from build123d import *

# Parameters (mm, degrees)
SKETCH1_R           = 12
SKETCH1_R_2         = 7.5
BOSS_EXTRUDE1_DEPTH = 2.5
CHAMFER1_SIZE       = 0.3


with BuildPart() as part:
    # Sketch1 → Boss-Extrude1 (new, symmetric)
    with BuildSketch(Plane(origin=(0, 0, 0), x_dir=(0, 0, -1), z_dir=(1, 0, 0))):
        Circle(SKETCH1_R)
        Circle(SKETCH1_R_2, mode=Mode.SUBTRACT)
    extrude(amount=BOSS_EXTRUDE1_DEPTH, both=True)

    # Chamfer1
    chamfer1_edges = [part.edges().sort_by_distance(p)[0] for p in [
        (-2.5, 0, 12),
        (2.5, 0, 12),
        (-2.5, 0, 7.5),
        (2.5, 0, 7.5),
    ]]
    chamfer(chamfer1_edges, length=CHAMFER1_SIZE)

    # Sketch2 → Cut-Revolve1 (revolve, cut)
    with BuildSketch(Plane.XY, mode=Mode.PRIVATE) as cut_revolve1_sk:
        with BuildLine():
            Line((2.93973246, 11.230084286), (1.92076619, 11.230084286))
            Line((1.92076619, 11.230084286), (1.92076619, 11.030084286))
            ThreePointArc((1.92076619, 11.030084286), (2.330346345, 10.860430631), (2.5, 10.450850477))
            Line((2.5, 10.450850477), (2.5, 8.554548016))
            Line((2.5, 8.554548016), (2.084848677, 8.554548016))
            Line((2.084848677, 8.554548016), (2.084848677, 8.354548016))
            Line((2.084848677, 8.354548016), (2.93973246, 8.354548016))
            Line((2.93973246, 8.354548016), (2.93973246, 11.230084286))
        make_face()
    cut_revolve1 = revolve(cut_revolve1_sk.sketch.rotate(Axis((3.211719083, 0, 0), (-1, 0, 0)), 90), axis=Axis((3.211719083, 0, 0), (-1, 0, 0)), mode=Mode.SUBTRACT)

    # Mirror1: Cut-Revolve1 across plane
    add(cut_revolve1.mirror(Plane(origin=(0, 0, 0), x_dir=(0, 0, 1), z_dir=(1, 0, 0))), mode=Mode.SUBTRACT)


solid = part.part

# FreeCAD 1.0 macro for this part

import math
import FreeCAD as App
import Part
import Sketcher

V = App.Vector


def edges_at(feature, points):
    """Names of the edges that pass closest to the given points."""
    edges = feature.Shape.Edges
    near = lambda p: min(range(len(edges)), key=lambda i: edges[i].distToShape(Part.Vertex(*p))[0])
    return sorted({f"Edge{near(p) + 1}" for p in points})

doc = App.newDocument("Part")
body = doc.addObject("PartDesign::Body", "Body")

# Sketch on YZ plane
sketch1 = doc.addObject("Sketcher::SketchObject", "Sketch")
body.addObject(sketch1)
sketch1.AttachmentSupport = (doc.YZ_Plane, [""])
sketch1.MapMode = "FlatFace"
sketch1.addGeometry(Part.Circle(V(0, 0, 0), V(0, 0, 1), 12), False)
sketch1.addGeometry(Part.Circle(V(0, 0, 0), V(0, 0, 1), 8), False)
sketch1.addConstraint(Sketcher.Constraint("Coincident", 0, 3, -1, 1))
sketch1.addConstraint(Sketcher.Constraint("Coincident", 1, 3, -1, 1))
sketch1.addConstraint(Sketcher.Constraint("Diameter", 0, 24.0))
sketch1.addConstraint(Sketcher.Constraint("Diameter", 1, 15.0))
pad1 = doc.addObject("PartDesign::Pad", "Pad")
body.addObject(pad1)
pad1.Profile = sketch1
pad1.Length = 5
pad1.Midplane = True
doc.recompute()

chamfer = doc.addObject("PartDesign::Chamfer", "Chamfer")
body.addObject(chamfer)
chamfer.Base = (pad1, edges_at(pad1, [
    (-2.5, 0, 12),
    (2.5, 0, 12),
    (-2.5, 0, 7.5),
    (2.5, 0, 7.5),
]))
chamfer.Size = 0.3

# Sketch on XY plane
sketch2 = doc.addObject("Sketcher::SketchObject", "Sketch001")
body.addObject(sketch2)
sketch2.AttachmentSupport = (doc.XY_Plane, [""])
sketch2.MapMode = "FlatFace"
sketch2.addGeometry(Part.LineSegment(V(2.94, 11.23, 0), V(1.92, 11.23, 0)), False)
sketch2.addGeometry(Part.LineSegment(V(1.92, 11.23, 0), V(1.92, 11.03, 0)), False)
sketch2.addGeometry(Part.ArcOfCircle(Part.Circle(V(1.92, 10.45, 0), V(0, 0, 1), 0.58), math.radians(0), math.radians(90)), False)
sketch2.addGeometry(Part.LineSegment(V(2.5, 10.45, 0), V(2.5, 8.55, 0)), False)
sketch2.addGeometry(Part.LineSegment(V(2.5, 8.55, 0), V(2.08, 8.55, 0)), False)
sketch2.addGeometry(Part.LineSegment(V(2.08, 8.55, 0), V(2.08, 8.35, 0)), False)
sketch2.addGeometry(Part.LineSegment(V(2.08, 8.35, 0), V(2.94, 8.35, 0)), False)
sketch2.addGeometry(Part.LineSegment(V(2.94, 8.35, 0), V(2.94, 11.23, 0)), False)
sketch2.addConstraint(Sketcher.Constraint("Coincident", 0, 2, 1, 1))
sketch2.addConstraint(Sketcher.Constraint("Coincident", 1, 2, 2, 2))
sketch2.addConstraint(Sketcher.Constraint("Tangent", 2, 1, 3, 1))
sketch2.addConstraint(Sketcher.Constraint("Coincident", 3, 2, 4, 1))
sketch2.addConstraint(Sketcher.Constraint("Coincident", 4, 2, 5, 1))
sketch2.addConstraint(Sketcher.Constraint("Coincident", 5, 2, 6, 1))
sketch2.addConstraint(Sketcher.Constraint("Coincident", 6, 2, 7, 1))
sketch2.addConstraint(Sketcher.Constraint("Coincident", 7, 2, 0, 1))
sketch2.addConstraint(Sketcher.Constraint("Horizontal", 0))
sketch2.addConstraint(Sketcher.Constraint("Vertical", 1))
sketch2.addConstraint(Sketcher.Constraint("Vertical", 3))
sketch2.addConstraint(Sketcher.Constraint("Horizontal", 4))
sketch2.addConstraint(Sketcher.Constraint("Vertical", 5))
sketch2.addConstraint(Sketcher.Constraint("Horizontal", 6))
sketch2.addConstraint(Sketcher.Constraint("Vertical", 7))
sketch2.addConstraint(Sketcher.Constraint("Vertical", 2, 3, 0, 2))
sketch2.addConstraint(Sketcher.Constraint("Equal", 1, 5))
sketch2.addConstraint(Sketcher.Constraint("DistanceY", 1, 2, 1, 1, 0.2))
sketch2.addConstraint(Sketcher.Constraint("DistanceX", -1, 1, 2, 1, 2.5))
sketch2.addConstraint(Sketcher.Constraint("Radius", 2, 0.579234))
sketch2.addConstraint(Sketcher.Constraint("DistanceX", 4, 2, 4, 1, 0.415151))
sketch2.addConstraint(Sketcher.Constraint("DistanceX", 0, 2, 0, 1, 1.018966))
sketch2.addConstraint(Sketcher.Constraint("DistanceY", 3, 2, 3, 1, 1.896302))
sketch2.addConstraint(Sketcher.Constraint("DistanceY", -1, 1, 2, 3, 10.45085))
groove = doc.addObject("PartDesign::Groove", "Groove")
body.addObject(groove)
groove.Profile = sketch2
groove.ReferenceAxis = (sketch2, ["H_Axis"])
groove.Angle = 360
doc.recompute()

mirrored = doc.addObject("PartDesign::Mirrored", "Mirrored")
body.addObject(mirrored)
mirrored.Originals = [groove]
mirrored.MirrorPlane = (doc.YZ_Plane, [""])
body.Tip = mirrored

doc.recompute()
